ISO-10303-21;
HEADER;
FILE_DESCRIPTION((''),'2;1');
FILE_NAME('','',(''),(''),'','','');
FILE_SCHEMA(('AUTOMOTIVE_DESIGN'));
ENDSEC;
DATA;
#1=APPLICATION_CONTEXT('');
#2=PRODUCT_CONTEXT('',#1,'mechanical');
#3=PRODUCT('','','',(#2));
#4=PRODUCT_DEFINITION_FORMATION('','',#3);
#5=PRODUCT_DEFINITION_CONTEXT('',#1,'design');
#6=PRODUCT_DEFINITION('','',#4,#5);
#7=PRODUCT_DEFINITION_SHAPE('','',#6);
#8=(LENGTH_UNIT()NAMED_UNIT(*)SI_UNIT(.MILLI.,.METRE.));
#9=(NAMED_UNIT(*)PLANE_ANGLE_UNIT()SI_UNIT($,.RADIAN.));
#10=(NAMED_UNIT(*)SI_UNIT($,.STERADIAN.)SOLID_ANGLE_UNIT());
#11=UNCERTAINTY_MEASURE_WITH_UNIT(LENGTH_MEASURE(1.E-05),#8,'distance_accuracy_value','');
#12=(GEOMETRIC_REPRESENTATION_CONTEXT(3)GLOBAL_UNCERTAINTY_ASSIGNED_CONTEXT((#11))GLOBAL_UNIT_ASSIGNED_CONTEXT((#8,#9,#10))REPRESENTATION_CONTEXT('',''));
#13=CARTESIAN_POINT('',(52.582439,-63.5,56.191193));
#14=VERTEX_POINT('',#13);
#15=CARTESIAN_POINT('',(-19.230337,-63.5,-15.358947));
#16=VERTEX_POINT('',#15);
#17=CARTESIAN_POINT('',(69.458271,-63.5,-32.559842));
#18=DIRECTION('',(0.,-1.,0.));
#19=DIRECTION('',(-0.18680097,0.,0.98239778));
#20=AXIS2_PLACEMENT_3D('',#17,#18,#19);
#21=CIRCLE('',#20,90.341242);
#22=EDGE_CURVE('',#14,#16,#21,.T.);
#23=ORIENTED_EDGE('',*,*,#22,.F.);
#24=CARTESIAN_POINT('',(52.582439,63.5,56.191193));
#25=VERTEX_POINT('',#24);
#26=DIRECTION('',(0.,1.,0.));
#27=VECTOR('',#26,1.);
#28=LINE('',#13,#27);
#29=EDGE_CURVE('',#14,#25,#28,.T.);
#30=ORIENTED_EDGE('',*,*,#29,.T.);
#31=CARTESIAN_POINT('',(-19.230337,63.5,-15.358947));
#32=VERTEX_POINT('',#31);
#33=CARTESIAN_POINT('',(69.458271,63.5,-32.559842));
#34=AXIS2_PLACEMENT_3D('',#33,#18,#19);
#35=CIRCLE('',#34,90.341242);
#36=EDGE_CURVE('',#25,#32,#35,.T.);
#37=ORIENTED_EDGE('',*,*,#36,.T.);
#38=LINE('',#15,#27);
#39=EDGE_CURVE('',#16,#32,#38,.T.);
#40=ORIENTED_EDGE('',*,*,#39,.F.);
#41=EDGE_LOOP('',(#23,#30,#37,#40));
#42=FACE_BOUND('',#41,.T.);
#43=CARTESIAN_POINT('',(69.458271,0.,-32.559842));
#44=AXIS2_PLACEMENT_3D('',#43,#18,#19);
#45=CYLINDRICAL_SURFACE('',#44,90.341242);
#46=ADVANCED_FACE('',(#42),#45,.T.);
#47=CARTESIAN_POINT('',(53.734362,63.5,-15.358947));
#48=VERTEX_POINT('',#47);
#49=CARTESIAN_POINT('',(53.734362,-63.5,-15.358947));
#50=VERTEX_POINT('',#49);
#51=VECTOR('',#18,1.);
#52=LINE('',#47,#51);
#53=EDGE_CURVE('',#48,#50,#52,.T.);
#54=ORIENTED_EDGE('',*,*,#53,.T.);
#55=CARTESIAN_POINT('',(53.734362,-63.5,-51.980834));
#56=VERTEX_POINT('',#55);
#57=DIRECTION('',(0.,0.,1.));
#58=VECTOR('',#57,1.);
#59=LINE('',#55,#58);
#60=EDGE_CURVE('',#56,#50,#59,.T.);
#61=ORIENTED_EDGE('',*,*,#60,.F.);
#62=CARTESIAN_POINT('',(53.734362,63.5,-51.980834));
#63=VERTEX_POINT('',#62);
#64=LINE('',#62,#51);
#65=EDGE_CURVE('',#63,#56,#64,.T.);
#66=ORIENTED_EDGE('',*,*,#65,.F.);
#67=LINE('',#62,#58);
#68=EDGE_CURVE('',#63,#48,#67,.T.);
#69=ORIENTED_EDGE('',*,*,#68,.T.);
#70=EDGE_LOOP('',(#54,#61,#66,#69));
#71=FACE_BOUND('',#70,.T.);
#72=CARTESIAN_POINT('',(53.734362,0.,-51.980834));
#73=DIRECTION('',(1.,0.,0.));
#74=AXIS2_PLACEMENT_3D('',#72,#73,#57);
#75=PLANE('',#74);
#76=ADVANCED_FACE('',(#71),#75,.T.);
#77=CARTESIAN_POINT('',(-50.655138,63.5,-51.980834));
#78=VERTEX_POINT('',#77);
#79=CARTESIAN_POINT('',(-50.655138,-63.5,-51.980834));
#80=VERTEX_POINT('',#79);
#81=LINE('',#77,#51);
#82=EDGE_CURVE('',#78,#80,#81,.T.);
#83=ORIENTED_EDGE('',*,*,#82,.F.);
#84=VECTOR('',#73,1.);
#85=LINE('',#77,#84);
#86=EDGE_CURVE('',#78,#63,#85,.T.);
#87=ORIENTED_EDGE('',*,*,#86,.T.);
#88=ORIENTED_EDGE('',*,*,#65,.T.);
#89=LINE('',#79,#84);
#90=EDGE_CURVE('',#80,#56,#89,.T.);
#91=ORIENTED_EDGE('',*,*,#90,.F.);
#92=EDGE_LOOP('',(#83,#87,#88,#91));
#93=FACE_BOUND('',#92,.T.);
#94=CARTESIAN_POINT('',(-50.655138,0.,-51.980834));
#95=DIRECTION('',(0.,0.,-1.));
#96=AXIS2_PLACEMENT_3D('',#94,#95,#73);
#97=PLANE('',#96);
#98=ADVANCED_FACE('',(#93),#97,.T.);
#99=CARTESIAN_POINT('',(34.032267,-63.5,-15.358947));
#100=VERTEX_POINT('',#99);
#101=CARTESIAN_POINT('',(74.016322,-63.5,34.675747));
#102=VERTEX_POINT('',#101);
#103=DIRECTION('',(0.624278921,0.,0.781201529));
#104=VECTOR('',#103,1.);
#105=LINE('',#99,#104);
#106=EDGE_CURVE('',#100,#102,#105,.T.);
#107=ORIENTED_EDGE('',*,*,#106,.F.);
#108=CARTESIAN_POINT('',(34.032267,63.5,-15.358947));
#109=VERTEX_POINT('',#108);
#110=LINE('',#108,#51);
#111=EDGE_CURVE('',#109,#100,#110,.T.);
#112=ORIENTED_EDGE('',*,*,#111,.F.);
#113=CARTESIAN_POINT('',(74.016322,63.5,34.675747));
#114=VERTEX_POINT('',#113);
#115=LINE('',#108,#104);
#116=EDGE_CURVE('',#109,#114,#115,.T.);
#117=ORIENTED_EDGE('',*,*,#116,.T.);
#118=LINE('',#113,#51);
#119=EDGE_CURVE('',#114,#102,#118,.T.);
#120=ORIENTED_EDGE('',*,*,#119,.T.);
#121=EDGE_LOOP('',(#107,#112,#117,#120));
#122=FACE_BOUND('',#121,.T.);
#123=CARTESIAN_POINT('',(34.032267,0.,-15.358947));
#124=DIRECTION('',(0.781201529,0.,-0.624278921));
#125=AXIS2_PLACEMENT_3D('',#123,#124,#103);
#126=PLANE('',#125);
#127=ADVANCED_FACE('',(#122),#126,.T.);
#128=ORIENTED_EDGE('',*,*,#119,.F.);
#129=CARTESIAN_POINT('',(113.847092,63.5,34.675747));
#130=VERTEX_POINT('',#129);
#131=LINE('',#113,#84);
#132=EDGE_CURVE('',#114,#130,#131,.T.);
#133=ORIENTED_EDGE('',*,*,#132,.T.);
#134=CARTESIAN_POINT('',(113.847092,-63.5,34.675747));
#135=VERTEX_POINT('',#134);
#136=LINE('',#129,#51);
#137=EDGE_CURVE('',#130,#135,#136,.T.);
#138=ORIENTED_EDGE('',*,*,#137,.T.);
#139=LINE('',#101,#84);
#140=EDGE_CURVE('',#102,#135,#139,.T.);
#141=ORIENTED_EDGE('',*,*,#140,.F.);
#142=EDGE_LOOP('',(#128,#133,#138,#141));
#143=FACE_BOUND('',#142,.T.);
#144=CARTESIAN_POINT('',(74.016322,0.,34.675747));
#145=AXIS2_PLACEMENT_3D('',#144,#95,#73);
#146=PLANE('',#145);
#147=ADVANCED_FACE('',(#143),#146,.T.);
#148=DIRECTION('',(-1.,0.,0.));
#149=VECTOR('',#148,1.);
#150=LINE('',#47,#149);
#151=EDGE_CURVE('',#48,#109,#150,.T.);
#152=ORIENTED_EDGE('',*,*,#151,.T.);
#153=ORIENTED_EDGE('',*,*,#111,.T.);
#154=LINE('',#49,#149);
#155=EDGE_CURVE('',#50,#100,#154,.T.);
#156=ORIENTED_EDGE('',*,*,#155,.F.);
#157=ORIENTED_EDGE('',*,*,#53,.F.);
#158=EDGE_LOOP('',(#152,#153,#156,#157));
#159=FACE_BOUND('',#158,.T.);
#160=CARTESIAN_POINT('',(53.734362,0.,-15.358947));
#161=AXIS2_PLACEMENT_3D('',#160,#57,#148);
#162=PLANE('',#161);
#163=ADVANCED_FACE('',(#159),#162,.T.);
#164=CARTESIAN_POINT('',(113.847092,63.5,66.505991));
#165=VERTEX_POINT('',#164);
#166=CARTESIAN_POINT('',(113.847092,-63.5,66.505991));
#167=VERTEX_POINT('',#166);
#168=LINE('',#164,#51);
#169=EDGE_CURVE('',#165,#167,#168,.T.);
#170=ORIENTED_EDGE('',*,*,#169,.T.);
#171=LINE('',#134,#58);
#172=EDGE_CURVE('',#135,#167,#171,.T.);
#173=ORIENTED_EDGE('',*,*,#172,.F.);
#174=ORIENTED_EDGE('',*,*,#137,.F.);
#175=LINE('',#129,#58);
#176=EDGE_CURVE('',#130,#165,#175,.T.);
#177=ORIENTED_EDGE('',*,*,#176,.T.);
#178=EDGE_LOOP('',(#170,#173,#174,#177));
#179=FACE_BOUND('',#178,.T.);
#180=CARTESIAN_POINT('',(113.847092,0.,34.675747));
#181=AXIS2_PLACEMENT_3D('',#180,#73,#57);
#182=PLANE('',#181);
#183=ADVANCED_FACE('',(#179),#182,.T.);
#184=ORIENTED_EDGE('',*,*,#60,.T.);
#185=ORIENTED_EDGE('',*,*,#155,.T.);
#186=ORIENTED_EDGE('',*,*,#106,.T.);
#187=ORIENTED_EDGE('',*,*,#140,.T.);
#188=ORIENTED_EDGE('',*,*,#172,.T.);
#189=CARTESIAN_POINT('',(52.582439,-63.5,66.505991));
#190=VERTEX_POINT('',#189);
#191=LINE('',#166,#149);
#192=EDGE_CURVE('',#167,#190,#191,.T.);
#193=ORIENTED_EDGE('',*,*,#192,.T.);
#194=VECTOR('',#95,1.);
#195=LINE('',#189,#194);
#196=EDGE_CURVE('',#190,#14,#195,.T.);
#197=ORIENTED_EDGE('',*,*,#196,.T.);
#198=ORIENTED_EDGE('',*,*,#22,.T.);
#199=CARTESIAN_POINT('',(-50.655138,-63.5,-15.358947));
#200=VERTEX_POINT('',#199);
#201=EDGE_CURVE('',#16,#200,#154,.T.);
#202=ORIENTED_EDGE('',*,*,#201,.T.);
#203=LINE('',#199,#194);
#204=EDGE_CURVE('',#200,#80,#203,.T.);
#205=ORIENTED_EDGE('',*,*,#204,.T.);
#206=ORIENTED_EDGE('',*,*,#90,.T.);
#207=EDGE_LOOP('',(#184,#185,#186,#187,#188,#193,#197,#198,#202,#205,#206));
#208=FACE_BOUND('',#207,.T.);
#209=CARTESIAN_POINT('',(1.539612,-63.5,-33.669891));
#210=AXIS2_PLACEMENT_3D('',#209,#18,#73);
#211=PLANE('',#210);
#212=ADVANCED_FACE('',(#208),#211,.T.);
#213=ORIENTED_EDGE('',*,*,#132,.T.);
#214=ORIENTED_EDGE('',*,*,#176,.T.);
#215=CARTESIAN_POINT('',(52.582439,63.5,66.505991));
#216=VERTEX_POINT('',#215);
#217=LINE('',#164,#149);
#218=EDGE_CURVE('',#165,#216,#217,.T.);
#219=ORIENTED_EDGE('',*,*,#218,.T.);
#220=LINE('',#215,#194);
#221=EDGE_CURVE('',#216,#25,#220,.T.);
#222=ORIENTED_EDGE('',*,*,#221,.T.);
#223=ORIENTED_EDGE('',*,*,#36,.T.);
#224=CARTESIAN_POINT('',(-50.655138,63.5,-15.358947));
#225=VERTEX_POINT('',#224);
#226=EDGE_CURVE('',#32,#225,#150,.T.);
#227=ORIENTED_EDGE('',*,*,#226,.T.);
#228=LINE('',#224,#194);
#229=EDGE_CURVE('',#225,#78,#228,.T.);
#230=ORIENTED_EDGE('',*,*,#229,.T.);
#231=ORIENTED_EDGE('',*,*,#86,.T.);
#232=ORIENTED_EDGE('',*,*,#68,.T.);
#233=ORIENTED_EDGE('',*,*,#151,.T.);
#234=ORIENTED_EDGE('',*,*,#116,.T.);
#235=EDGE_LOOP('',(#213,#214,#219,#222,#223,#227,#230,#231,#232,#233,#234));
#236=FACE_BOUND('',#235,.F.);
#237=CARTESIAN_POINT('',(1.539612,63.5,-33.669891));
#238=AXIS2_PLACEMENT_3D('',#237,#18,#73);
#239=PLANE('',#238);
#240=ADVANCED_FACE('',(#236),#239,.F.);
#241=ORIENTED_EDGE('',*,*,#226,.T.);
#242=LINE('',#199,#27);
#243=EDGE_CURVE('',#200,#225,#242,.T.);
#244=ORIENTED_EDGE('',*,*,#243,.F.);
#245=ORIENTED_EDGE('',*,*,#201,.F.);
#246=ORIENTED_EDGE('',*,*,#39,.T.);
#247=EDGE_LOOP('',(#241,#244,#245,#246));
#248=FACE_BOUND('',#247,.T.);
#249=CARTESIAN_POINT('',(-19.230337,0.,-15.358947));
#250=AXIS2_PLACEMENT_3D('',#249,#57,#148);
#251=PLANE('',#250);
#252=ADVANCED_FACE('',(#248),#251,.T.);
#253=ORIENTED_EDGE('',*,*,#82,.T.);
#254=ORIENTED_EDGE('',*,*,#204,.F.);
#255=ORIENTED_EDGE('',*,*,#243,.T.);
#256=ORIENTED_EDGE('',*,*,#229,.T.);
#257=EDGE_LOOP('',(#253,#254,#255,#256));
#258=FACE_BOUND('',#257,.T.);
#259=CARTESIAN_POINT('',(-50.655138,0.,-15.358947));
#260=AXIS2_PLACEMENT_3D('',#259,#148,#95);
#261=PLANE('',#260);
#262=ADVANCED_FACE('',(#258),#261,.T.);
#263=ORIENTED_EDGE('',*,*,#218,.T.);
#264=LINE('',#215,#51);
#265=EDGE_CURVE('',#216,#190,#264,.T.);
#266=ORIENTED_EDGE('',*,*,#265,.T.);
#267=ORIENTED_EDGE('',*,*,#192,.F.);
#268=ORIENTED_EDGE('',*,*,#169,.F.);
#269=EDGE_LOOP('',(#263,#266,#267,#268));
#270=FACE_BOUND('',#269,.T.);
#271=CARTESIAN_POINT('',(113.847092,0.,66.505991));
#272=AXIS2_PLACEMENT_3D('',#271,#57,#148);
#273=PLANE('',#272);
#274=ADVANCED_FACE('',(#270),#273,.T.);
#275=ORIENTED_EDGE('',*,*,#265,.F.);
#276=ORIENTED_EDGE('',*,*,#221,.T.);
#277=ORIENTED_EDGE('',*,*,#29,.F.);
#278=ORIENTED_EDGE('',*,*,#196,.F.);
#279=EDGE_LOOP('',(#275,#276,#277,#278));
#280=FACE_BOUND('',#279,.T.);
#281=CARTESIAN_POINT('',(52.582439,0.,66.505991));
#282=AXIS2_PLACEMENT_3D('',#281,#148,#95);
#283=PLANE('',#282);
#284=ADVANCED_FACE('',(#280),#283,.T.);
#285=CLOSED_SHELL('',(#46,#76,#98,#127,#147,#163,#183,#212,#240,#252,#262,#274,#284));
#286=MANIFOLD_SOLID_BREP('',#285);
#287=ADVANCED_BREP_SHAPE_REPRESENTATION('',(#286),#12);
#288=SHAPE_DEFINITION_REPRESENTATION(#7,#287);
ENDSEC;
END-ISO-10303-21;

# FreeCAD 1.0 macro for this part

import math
import FreeCAD as App
import Part
import Sketcher
from FreeCAD import Vector
Q = App.Units.Quantity

doc = App.newDocument("Part")
body = doc.addObject("PartDesign::Body", "Body")

# Sketch on XZ plane
sketch1 = body.newObject("Sketcher::SketchObject", "Sketch")
sketch1.AttachmentSupport = (doc.getObject("XZ_Plane"), [""])
sketch1.MapMode = "FlatFace"
sketch1.addGeometry(Part.LineSegment(Vector(-50.655138, -15.358947, 0), Vector(-50.655138, -51.980834, 0)), False)
sketch1.addGeometry(Part.LineSegment(Vector(-50.655138, -51.980834, 0), Vector(53.734362, -51.980834, 0)), False)
sketch1.addGeometry(Part.LineSegment(Vector(53.734362, -51.980834, 0), Vector(53.734362, -15.358947, 0)), False)
sketch1.addGeometry(Part.LineSegment(Vector(53.734362, -15.358947, 0), Vector(34.032267, -15.358947, 0)), False)
sketch1.addGeometry(Part.LineSegment(Vector(34.032267, -15.358947, 0), Vector(74.016322, 34.675747, 0)), False)
sketch1.addGeometry(Part.LineSegment(Vector(74.016322, 34.675747, 0), Vector(113.847092, 34.675747, 0)), False)
sketch1.addGeometry(Part.LineSegment(Vector(113.847092, 34.675747, 0), Vector(113.847092, 66.505991, 0)), False)
sketch1.addGeometry(Part.LineSegment(Vector(113.847092, 66.505991, 0), Vector(52.582439, 66.505991, 0)), False)
sketch1.addGeometry(Part.LineSegment(Vector(52.582439, 66.505991, 0), Vector(52.582439, 56.191193, 0)), False)
sketch1.addGeometry(Part.ArcOfCircle(Part.Circle(Vector(69.458271, -32.559842, 0), Vector(0, 0, 1), 90.341242), math.radians(100.766151), math.radians(169.023921)), False)
sketch1.addGeometry(Part.LineSegment(Vector(-19.230337, -15.358947, 0), Vector(-50.655138, -15.358947, 0)), False)
sketch1.addConstraint(Sketcher.Constraint("Coincident", 0, 2, 1, 1))
sketch1.addConstraint(Sketcher.Constraint("Coincident", 1, 2, 2, 1))
sketch1.addConstraint(Sketcher.Constraint("Coincident", 2, 2, 3, 1))
sketch1.addConstraint(Sketcher.Constraint("Coincident", 3, 2, 4, 1))
sketch1.addConstraint(Sketcher.Constraint("Coincident", 4, 2, 5, 1))
sketch1.addConstraint(Sketcher.Constraint("Coincident", 5, 2, 6, 1))
sketch1.addConstraint(Sketcher.Constraint("Coincident", 6, 2, 7, 1))
sketch1.addConstraint(Sketcher.Constraint("Coincident", 7, 2, 8, 1))
sketch1.addConstraint(Sketcher.Constraint("Coincident", 8, 2, 9, 1))
sketch1.addConstraint(Sketcher.Constraint("Coincident", 9, 2, 10, 1))
sketch1.addConstraint(Sketcher.Constraint("Coincident", 10, 2, 0, 1))
sketch1.addConstraint(Sketcher.Constraint("Vertical", 0))
sketch1.addConstraint(Sketcher.Constraint("Horizontal", 1))
sketch1.addConstraint(Sketcher.Constraint("Vertical", 2))
sketch1.addConstraint(Sketcher.Constraint("Horizontal", 3))
sketch1.addConstraint(Sketcher.Constraint("Horizontal", 5))
sketch1.addConstraint(Sketcher.Constraint("Vertical", 6))
sketch1.addConstraint(Sketcher.Constraint("Horizontal", 7))
sketch1.addConstraint(Sketcher.Constraint("Vertical", 8))
sketch1.addConstraint(Sketcher.Constraint("Horizontal", 10))
sketch1.addConstraint(Sketcher.Constraint("Horizontal", 3, 2, 9, 2))
sketch1.addConstraint(Sketcher.Constraint("Radius", 9, 90.341242))
sketch1.addConstraint(Sketcher.Constraint("DistanceX", 1, 1, 1, 2, 104.3895))
sketch1.addConstraint(Sketcher.Constraint("DistanceX", 10, 2, 10, 1, 31.424801))
sketch1.addConstraint(Sketcher.Constraint("DistanceX", 9, 2, -1, 1, Q("0.7570999 in")))
sketch1.addConstraint(Sketcher.Constraint("DistanceX", 5, 1, 5, 2, 39.83077))
sketch1.addConstraint(Sketcher.Constraint("DistanceX", 3, 2, 3, 1, 19.702095))
sketch1.addConstraint(Sketcher.Constraint("DistanceX", 7, 2, 7, 1, 61.264653))
sketch1.addConstraint(Sketcher.Constraint("DistanceY", 0, 2, 0, 1, 36.621887))
sketch1.addConstraint(Sketcher.Constraint("DistanceY", 6, 1, 6, 2, 31.830244))
sketch1.addConstraint(Sketcher.Constraint("DistanceY", 8, 2, 8, 1, 10.314798))
sketch1.addConstraint(Sketcher.Constraint("DistanceX", -1, 1, 9, 3, 69.458271))
sketch1.addConstraint(Sketcher.Constraint("DistanceX", -1, 1, 5, 2, 113.847092))
sketch1.addConstraint(Sketcher.Constraint("DistanceY", -1, 1, 6, 2, 66.505991))
pad1 = body.newObject("PartDesign::Pad", "Pad")
pad1.Profile = sketch1
pad1.Length = Q("5 in")
pad1.Midplane = True

doc.recompute()
